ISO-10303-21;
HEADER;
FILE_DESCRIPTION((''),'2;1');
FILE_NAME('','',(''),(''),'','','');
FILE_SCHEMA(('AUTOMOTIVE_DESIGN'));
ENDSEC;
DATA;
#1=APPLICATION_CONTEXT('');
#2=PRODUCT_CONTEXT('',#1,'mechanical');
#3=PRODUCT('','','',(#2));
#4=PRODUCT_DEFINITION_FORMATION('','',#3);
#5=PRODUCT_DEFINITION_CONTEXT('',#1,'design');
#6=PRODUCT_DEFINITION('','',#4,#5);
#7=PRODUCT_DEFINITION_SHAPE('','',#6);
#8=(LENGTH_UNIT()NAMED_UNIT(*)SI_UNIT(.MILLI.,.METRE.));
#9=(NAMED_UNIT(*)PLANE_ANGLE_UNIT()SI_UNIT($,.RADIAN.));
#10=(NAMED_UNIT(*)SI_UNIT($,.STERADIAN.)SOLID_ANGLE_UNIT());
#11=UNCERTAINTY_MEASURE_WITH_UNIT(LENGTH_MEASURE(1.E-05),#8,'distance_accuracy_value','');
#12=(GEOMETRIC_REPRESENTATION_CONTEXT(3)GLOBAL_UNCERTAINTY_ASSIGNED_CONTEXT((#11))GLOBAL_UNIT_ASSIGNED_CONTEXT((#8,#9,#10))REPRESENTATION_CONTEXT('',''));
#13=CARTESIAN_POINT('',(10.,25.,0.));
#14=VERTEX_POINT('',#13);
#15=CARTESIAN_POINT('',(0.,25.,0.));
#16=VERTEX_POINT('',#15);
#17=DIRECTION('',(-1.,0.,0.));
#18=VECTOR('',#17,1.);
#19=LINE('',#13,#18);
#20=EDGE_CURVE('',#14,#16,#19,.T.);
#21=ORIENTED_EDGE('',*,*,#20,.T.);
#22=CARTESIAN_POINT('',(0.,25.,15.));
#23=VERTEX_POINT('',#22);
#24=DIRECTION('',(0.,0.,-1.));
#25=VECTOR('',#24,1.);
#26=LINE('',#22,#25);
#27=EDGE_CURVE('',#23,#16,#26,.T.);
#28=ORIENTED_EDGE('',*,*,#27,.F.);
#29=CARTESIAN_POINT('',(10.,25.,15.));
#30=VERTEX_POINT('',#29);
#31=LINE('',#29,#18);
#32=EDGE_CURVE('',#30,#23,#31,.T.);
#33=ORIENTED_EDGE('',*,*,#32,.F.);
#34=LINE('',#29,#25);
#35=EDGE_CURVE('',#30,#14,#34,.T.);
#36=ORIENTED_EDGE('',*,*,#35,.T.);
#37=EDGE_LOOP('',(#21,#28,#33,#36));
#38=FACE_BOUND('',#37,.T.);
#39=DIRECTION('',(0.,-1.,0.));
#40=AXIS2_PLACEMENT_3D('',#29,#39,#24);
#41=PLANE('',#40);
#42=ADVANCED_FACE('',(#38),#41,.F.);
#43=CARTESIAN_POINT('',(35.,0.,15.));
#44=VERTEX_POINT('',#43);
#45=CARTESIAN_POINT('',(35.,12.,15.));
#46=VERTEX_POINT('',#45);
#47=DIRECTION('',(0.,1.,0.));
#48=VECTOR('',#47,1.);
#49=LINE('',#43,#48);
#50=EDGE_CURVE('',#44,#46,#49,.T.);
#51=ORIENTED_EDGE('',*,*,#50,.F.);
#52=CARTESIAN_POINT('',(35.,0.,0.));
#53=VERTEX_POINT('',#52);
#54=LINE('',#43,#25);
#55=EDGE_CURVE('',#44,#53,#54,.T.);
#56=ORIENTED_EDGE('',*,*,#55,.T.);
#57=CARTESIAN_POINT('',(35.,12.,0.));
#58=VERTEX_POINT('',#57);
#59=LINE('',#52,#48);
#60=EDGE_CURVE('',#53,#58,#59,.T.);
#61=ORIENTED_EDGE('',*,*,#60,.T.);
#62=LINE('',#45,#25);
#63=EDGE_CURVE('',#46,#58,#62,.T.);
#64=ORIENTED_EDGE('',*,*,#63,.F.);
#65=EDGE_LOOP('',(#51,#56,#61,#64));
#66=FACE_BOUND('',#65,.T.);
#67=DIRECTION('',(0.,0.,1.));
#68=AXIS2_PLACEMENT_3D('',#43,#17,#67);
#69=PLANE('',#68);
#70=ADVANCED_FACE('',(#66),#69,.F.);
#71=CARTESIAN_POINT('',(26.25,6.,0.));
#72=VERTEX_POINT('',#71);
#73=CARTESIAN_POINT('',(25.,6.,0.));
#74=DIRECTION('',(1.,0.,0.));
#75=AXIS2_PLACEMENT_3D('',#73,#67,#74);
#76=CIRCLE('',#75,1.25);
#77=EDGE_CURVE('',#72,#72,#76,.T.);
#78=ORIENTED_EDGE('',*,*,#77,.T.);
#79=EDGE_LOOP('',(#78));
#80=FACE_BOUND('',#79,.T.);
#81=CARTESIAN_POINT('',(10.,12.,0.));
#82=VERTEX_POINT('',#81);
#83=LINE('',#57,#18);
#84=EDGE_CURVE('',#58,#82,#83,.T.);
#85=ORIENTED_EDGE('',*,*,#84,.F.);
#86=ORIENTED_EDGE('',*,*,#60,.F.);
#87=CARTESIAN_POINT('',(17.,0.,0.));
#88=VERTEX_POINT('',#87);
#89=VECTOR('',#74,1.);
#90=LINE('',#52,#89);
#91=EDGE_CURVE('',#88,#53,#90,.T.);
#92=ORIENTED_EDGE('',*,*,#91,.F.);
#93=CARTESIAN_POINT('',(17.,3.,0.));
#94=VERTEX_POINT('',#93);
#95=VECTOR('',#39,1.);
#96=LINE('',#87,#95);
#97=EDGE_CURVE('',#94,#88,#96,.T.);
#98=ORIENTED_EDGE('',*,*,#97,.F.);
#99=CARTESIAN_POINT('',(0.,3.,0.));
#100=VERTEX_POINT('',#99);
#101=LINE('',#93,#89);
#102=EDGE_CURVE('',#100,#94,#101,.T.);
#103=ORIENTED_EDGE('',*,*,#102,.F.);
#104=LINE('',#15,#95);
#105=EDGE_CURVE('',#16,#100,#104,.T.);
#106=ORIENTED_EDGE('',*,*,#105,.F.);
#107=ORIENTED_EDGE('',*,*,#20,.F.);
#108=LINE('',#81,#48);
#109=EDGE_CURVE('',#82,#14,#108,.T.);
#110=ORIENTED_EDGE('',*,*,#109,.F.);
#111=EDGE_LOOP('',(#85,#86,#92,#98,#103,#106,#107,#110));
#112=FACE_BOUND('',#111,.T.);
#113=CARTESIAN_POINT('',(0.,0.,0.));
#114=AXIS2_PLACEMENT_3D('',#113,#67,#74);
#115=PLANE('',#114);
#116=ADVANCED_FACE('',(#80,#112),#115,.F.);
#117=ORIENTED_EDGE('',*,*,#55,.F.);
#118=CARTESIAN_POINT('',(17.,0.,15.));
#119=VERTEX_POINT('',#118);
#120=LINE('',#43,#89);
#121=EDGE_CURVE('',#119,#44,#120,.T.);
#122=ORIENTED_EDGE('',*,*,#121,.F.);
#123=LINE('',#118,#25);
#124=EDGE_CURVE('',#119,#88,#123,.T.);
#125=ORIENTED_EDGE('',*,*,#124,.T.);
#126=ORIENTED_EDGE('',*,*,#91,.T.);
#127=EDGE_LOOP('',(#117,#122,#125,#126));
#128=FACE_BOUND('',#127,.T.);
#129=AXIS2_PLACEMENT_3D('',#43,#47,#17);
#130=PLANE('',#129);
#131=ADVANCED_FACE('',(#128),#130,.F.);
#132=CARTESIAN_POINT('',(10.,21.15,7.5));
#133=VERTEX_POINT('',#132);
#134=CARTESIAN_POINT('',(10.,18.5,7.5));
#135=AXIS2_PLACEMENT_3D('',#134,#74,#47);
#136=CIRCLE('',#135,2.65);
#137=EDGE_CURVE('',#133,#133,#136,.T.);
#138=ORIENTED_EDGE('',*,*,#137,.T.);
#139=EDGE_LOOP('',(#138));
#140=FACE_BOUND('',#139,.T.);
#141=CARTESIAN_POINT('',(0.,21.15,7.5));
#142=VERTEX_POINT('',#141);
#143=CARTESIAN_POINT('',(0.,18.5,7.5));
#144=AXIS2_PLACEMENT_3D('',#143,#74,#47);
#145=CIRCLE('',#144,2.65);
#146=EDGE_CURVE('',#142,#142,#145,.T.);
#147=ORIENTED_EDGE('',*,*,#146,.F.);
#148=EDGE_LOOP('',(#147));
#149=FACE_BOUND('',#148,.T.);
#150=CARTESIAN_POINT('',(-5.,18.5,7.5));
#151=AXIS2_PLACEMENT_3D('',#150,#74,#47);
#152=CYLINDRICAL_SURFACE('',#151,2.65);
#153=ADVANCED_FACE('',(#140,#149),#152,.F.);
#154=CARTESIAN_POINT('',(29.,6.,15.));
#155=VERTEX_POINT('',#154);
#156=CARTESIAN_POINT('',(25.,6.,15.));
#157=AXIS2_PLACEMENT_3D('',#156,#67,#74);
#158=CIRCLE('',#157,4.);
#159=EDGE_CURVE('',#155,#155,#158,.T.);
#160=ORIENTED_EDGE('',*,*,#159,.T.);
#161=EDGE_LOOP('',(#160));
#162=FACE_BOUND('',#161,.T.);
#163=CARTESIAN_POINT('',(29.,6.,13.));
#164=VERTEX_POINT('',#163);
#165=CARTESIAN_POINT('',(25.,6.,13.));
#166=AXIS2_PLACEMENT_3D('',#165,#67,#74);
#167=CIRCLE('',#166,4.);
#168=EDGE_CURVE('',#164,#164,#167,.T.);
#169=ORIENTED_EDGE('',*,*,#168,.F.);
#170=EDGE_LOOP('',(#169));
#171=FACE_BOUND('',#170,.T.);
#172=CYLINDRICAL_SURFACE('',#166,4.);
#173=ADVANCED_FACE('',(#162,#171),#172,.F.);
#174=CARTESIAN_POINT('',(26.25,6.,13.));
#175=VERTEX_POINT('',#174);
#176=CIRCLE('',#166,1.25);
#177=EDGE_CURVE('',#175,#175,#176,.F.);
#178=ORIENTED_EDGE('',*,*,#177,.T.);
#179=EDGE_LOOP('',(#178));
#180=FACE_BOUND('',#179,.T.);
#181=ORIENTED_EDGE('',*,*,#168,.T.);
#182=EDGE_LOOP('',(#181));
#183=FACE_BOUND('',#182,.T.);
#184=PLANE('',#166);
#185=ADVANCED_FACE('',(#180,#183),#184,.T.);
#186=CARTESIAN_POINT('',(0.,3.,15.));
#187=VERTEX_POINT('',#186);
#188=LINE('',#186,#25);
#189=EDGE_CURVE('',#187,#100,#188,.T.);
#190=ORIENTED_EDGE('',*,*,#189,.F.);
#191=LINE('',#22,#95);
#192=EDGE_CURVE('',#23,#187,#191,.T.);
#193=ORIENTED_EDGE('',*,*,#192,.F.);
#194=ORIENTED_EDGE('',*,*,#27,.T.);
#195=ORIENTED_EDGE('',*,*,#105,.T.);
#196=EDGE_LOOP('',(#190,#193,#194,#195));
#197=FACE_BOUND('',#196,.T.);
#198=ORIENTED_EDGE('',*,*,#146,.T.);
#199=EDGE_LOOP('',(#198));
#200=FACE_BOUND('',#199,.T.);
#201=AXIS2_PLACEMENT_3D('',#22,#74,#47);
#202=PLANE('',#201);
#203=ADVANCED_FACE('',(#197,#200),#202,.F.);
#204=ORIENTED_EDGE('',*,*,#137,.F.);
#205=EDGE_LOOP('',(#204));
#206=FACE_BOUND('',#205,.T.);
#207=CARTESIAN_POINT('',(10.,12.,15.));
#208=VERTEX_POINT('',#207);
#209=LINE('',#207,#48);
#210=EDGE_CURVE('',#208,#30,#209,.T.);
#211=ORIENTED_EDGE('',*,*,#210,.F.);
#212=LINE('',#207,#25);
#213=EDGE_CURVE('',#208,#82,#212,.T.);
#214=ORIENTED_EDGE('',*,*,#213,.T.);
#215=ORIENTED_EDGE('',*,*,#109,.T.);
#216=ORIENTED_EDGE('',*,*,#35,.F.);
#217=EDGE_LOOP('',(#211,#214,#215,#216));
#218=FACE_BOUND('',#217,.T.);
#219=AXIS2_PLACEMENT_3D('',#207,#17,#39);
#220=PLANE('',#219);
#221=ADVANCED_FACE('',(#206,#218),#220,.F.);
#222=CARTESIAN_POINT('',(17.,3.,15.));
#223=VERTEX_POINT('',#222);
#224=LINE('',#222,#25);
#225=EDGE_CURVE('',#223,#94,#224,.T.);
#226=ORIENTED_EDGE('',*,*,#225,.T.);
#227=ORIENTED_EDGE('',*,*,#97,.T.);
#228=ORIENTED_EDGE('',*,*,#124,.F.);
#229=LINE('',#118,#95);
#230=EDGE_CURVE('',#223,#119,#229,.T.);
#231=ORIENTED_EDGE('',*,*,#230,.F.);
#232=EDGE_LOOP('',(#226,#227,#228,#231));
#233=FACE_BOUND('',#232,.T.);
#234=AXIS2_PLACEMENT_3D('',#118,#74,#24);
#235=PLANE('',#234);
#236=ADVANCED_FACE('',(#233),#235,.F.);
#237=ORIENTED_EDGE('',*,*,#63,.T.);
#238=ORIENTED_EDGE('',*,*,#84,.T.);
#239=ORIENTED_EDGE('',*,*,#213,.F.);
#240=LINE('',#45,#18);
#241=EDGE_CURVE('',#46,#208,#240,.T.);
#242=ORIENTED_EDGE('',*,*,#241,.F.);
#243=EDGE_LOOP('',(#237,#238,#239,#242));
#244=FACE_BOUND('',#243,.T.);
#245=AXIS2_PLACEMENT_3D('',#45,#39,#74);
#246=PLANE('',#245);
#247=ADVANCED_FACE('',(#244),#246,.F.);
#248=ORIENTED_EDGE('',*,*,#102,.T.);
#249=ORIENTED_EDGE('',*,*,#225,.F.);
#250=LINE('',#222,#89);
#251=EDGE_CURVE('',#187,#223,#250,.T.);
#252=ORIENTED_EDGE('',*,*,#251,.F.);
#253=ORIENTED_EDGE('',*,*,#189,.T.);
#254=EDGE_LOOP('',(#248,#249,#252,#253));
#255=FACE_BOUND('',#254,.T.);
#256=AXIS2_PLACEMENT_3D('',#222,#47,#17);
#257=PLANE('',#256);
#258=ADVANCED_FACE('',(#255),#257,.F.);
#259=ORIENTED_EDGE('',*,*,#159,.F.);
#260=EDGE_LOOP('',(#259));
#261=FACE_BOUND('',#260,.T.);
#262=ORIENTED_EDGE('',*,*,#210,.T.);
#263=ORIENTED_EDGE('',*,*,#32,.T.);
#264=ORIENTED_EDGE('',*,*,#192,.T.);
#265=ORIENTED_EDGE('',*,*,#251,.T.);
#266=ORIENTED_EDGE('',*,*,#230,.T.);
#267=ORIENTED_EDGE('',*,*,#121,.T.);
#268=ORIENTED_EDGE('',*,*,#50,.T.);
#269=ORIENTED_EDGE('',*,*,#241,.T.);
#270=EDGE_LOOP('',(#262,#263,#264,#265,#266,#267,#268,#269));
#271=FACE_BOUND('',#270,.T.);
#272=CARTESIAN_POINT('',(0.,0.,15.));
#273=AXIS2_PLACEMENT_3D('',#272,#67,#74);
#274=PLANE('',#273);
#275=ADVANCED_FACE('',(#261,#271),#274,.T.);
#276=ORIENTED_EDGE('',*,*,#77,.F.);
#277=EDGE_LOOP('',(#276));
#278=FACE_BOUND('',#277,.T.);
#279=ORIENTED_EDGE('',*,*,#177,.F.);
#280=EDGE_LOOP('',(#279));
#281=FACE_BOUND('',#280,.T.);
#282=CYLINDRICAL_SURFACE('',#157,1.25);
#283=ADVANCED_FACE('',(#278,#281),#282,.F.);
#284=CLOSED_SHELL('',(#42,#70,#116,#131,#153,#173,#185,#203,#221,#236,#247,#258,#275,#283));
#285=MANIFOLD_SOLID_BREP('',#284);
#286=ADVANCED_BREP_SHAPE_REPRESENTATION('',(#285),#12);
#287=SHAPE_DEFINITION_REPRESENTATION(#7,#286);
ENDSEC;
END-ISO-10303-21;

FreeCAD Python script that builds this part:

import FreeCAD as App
import Part
import Sketcher

V = App.Vector
Q = App.Units.Quantity

doc = App.newDocument("Part")
body = doc.addObject("PartDesign::Body", "Body")

sketch1 = body.newObject("Sketcher::SketchObject", "Sketch")
sketch1.AttachmentSupport = (doc.getObject("XY_Plane"), [""])
sketch1.MapMode = "FlatFace"
sketch1.addGeometry([
    Part.LineSegment(V(17, 0, 0), V(35, 0, 0)),
    Part.LineSegment(V(35, 0, 0), V(35, 12, 0)),
    Part.LineSegment(V(35, 12, 0), V(10, 12, 0)),
    Part.LineSegment(V(10, 12, 0), V(10, 25, 0)),
    Part.LineSegment(V(10, 25, 0), V(0, 25, 0)),
    Part.LineSegment(V(0, 25, 0), V(0, 3, 0)),
    Part.LineSegment(V(0, 3, 0), V(17, 3, 0)),
    Part.LineSegment(V(17, 3, 0), V(17, 0, 0)),
], False)
sketch1.addConstraint([
    Sketcher.Constraint("Coincident", 0, 2, 1, 1),
    Sketcher.Constraint("Coincident", 1, 2, 2, 1),
    Sketcher.Constraint("Coincident", 2, 2, 3, 1),
    Sketcher.Constraint("Coincident", 3, 2, 4, 1),
    Sketcher.Constraint("Coincident", 4, 2, 5, 1),
    Sketcher.Constraint("Coincident", 5, 2, 6, 1),
    Sketcher.Constraint("Coincident", 6, 2, 7, 1),
    Sketcher.Constraint("Coincident", 7, 2, 0, 1),
    Sketcher.Constraint("Horizontal", 0),
    Sketcher.Constraint("Vertical", 1),
    Sketcher.Constraint("Horizontal", 2),
    Sketcher.Constraint("Vertical", 3),
    Sketcher.Constraint("Horizontal", 4),
    Sketcher.Constraint("Vertical", 5),
    Sketcher.Constraint("Horizontal", 6),
    Sketcher.Constraint("Vertical", 7),
    Sketcher.Constraint("PointOnObject", 0, 2, -1),
    Sketcher.Constraint("PointOnObject", 4, 2, -2),
    Sketcher.Constraint("DistanceX", 0, 1, 0, 2, Q("18 mm")),
    Sketcher.Constraint("DistanceX", 2, 2, 2, 1, Q("25 mm")),
    Sketcher.Constraint("DistanceX", 4, 2, 4, 1, Q("10 mm")),
    Sketcher.Constraint("DistanceY", 1, 1, 1, 2, Q("12 mm")),
    Sketcher.Constraint("DistanceY", 3, 1, 3, 2, Q("13 mm")),
    Sketcher.Constraint("DistanceY", 5, 2, 5, 1, Q("22 mm")),
])
pad1 = body.newObject("PartDesign::Pad", "Pad")
pad1.Profile = sketch1
pad1.Length = 15

sketch2 = body.newObject("Sketcher::SketchObject", "Sketch001")
sketch2.AttachmentSupport = (doc.getObject("YZ_Plane"), [""])
sketch2.MapMode = "FlatFace"
sketch2.AttachmentOffset = App.Placement(V(0, 0, 10), App.Rotation())
sketch2.addGeometry(Part.Circle(V(18.5, 7.5, 0), V(0, 0, 1), 2.6), False)
sketch2.addConstraint([
    Sketcher.Constraint("Diameter", 0, Q("5.3 mm")),
    Sketcher.Constraint("DistanceX", -1, 1, 0, 3, Q("18.5 mm")),
    Sketcher.Constraint("DistanceY", -1, 1, 0, 3, Q("7.5 mm")),
])
pocket1 = body.newObject("PartDesign::Pocket", "Pocket")
pocket1.Profile = sketch2
pocket1.Length = 15

sketch3 = body.newObject("Sketcher::SketchObject", "Sketch002")
sketch3.AttachmentSupport = (doc.getObject("XY_Plane"), [""])
sketch3.MapMode = "FlatFace"
sketch3.AttachmentOffset = App.Placement(V(0, 0, 15), App.Rotation())
sketch3.addGeometry(Part.Circle(V(25, 6, 0), V(0, 0, 1), 1.2), False)
sketch3.addConstraint([
    Sketcher.Constraint("Diameter", 0, Q("2.5 mm")),
    Sketcher.Constraint("DistanceX", -1, 1, 0, 3, Q("25 mm")),
    Sketcher.Constraint("DistanceY", -1, 1, 0, 3, Q("6 mm")),
])
doc.recompute()
hole = body.newObject("PartDesign::Hole", "Hole")
hole.Profile = sketch3
hole.ThreadType = "None"
hole.Diameter = 2.5
hole.DepthType = "ThroughAll"

sketch4 = body.newObject("Sketcher::SketchObject", "Sketch003")
sketch4.AttachmentSupport = (doc.getObject("XY_Plane"), [""])
sketch4.MapMode = "FlatFace"
sketch4.AttachmentOffset = App.Placement(V(0, 0, 15), App.Rotation())
sketch4.addGeometry(Part.Circle(V(25, 6, 0), V(0, 0, 1), 4), False)
sketch4.addConstraint([
    Sketcher.Constraint("Diameter", 0, Q("8 mm")),
    Sketcher.Constraint("DistanceX", -1, 1, 0, 3, Q("25 mm")),
    Sketcher.Constraint("DistanceY", -1, 1, 0, 3, Q("6 mm")),
])
pocket2 = body.newObject("PartDesign::Pocket", "Pocket001")
pocket2.Profile = sketch4
pocket2.Length = 2

doc.recompute()
